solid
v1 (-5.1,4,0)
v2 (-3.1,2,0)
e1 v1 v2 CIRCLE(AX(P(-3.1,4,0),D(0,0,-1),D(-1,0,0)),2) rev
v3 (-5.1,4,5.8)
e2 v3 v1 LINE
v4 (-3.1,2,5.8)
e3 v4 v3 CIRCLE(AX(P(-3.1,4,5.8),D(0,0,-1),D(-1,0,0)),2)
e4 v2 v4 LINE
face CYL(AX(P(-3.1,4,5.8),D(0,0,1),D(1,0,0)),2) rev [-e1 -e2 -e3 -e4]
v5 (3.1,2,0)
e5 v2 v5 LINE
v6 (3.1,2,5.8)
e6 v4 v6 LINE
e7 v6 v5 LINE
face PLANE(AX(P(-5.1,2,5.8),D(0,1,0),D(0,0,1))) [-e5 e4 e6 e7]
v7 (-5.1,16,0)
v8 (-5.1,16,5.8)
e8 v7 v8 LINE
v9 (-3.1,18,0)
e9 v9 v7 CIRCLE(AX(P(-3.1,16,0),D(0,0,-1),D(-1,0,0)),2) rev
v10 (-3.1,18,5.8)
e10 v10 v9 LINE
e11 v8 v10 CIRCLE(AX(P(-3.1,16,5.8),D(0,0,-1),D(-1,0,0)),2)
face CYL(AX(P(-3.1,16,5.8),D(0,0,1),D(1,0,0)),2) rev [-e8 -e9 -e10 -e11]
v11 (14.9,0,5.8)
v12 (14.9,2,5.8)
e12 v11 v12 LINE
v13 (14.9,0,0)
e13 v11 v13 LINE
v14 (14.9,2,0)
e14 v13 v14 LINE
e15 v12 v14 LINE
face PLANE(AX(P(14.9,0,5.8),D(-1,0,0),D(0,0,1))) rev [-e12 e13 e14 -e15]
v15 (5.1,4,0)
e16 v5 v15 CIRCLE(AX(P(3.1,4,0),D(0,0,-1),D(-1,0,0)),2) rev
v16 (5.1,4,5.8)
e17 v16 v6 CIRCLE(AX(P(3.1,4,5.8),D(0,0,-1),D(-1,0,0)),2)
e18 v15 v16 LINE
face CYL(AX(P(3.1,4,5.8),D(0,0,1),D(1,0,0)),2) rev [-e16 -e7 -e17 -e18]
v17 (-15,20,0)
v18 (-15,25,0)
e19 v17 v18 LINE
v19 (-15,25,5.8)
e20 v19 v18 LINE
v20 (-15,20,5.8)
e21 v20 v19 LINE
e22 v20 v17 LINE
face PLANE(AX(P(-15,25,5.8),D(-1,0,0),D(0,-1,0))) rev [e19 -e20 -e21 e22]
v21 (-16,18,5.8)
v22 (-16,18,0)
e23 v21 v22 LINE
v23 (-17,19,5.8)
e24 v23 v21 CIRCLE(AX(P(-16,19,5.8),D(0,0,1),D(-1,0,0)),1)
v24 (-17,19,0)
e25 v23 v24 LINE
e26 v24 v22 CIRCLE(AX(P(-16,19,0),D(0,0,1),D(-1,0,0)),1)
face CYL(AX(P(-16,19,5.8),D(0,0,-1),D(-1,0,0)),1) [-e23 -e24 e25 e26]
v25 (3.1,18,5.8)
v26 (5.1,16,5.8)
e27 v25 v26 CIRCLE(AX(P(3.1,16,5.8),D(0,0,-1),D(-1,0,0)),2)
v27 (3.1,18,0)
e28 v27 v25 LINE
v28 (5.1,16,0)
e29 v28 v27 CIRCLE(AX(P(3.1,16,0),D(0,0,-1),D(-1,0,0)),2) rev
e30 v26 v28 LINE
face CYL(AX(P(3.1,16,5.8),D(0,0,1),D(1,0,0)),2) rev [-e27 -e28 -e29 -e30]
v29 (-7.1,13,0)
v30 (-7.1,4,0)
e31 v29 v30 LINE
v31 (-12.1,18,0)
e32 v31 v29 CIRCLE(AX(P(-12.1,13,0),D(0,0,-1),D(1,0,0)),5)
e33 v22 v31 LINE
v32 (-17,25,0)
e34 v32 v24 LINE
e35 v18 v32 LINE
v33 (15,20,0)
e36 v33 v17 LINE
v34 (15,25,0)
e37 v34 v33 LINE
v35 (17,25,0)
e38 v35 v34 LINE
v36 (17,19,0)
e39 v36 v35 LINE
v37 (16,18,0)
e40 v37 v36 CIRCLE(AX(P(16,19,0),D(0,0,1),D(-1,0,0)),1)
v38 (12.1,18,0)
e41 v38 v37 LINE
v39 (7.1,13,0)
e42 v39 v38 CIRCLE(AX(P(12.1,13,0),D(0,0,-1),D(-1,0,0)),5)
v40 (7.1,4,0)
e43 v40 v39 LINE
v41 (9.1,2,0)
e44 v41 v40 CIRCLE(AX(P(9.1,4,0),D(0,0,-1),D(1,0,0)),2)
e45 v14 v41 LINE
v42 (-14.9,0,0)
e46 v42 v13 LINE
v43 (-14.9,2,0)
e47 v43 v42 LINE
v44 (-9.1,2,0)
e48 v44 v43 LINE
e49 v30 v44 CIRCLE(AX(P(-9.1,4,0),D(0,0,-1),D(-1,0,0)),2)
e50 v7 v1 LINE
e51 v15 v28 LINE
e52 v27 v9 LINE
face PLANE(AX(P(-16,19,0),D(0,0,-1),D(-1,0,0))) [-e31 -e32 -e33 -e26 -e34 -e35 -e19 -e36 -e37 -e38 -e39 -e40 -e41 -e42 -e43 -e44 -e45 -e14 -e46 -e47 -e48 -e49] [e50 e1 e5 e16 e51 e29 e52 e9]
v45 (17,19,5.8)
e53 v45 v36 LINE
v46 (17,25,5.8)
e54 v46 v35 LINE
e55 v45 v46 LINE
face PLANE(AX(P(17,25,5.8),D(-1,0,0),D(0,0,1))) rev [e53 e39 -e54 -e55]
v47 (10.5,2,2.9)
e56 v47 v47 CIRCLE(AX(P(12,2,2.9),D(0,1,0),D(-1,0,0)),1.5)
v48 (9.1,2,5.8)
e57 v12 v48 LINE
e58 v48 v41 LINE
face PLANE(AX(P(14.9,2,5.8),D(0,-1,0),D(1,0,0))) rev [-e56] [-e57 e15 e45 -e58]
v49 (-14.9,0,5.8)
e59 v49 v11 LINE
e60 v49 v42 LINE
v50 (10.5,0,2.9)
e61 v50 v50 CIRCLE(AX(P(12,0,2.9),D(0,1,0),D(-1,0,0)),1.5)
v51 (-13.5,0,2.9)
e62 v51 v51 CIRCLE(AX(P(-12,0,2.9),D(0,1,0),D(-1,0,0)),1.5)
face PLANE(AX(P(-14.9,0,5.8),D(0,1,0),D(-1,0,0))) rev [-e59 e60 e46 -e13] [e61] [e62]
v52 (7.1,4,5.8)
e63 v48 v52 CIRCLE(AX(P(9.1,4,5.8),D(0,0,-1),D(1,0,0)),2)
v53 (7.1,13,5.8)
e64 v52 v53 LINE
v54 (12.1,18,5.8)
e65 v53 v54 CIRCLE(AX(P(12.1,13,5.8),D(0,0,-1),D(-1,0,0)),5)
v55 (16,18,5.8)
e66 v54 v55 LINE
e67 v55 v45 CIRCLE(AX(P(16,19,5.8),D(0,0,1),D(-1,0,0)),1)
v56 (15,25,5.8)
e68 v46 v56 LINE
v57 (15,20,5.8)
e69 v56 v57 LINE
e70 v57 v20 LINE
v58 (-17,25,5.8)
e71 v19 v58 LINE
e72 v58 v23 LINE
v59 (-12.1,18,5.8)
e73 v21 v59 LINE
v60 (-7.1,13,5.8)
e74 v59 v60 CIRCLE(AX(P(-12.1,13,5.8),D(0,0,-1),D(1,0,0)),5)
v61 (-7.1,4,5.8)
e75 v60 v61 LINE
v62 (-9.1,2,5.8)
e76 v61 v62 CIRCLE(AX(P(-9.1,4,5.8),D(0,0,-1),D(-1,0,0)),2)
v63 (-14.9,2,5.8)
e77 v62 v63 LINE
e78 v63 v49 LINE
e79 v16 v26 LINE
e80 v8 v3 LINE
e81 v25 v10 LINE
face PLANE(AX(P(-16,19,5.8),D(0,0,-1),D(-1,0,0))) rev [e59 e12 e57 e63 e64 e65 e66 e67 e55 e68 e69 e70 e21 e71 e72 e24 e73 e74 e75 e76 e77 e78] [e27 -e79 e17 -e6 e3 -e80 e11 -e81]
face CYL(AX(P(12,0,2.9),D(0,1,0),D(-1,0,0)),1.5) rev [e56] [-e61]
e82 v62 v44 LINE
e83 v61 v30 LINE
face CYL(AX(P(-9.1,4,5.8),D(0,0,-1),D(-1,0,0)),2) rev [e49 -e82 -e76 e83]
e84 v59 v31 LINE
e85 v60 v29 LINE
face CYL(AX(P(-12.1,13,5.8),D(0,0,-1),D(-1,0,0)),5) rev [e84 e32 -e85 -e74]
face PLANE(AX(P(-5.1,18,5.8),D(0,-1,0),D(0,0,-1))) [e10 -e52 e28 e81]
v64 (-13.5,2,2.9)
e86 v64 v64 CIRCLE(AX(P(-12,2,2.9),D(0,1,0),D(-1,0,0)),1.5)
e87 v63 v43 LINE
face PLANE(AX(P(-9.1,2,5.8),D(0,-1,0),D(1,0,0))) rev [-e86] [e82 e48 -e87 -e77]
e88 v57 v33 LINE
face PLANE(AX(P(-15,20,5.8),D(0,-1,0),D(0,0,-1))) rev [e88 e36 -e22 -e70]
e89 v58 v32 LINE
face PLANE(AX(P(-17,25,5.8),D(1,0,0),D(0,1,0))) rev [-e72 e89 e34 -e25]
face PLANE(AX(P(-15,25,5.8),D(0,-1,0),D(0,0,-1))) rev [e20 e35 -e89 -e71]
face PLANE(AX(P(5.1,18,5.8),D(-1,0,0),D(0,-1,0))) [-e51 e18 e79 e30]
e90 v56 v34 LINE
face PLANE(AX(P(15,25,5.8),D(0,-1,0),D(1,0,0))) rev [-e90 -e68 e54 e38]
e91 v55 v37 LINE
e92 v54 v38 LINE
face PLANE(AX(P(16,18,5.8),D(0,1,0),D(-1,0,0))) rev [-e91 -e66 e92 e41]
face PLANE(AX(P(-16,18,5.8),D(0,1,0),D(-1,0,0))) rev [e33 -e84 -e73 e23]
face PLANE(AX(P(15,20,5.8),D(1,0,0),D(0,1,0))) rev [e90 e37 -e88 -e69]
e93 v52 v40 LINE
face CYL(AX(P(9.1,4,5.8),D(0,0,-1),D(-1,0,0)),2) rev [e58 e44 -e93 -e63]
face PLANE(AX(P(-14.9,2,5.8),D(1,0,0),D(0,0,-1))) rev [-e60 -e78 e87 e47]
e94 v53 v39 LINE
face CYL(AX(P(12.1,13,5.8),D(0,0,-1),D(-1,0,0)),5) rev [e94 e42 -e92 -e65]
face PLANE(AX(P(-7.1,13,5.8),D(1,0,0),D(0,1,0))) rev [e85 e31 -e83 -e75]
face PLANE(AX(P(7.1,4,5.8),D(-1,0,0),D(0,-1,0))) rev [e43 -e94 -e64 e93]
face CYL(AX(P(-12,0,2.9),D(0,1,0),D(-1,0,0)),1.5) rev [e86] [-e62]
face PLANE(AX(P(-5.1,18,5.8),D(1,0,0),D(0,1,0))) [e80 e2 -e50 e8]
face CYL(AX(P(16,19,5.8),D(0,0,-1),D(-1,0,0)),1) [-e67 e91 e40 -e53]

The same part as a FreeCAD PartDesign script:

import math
import FreeCAD as App
import Part
import Sketcher


def edges_at(feature, points):
    """Names of the edges that pass closest to the given points."""
    edges = feature.Shape.Edges
    near = lambda p: min(range(len(edges)), key=lambda i: edges[i].distToShape(Part.Vertex(*p))[0])
    return sorted({f"Edge{near(p) + 1}" for p in points})


def add_polygon(sketch, points):
    """Adds a closed chain of lines whose ends are joined by coincident constraints."""
    first, n = sketch.GeometryCount, len(points)
    for a, b in zip(points, points[1:] + points[:1]):
        sketch.addGeometry(Part.LineSegment(App.Vector(*a, 0), App.Vector(*b, 0)), False)
    for i in range(n):
        sketch.addConstraint(Sketcher.Constraint("Coincident", first + i, 2, first + (i + 1) % n, 1))

doc = App.newDocument("Part")
body = doc.addObject("PartDesign::Body", "Body")

# Sketch on XY plane
sketch1 = body.newObject("Sketcher::SketchObject", "Sketch")
sketch1.AttachmentSupport = (doc.getObject("XY_Plane"), [""])
sketch1.MapMode = "FlatFace"
sketch1.addGeometry(Part.LineSegment(App.Vector(-15, 20, 0), App.Vector(-15, 25, 0)), False)  # 0
sketch1.addGeometry(Part.LineSegment(App.Vector(-15, 25, 0), App.Vector(-17, 25, 0)), False)  # 1
sketch1.addGeometry(Part.LineSegment(App.Vector(-17, 25, 0), App.Vector(-17, 19, 0)), False)  # 2
sketch1.addGeometry(Part.ArcOfCircle(Part.Circle(App.Vector(-16, 19, 0), App.Vector(0, 0, 1), 1), math.radians(-180), math.radians(-90)), False)  # 3
sketch1.addGeometry(Part.LineSegment(App.Vector(-16, 18, 0), App.Vector(-12.1, 18, 0)), False)  # 4
sketch1.addGeometry(Part.ArcOfCircle(Part.Circle(App.Vector(-12.1, 13, 0), App.Vector(0, 0, 1), 5), math.radians(0), math.radians(90)), False)  # 5
sketch1.addGeometry(Part.LineSegment(App.Vector(-7.1, 13, 0), App.Vector(-7.1, 4, 0)), False)  # 6
sketch1.addGeometry(Part.ArcOfCircle(Part.Circle(App.Vector(-9.1, 4, 0), App.Vector(0, 0, 1), 2), math.radians(-90), math.radians(0)), False)  # 7
sketch1.addGeometry(Part.LineSegment(App.Vector(-9.1, 2, 0), App.Vector(-14.9, 2, 0)), False)  # 8
sketch1.addGeometry(Part.LineSegment(App.Vector(-14.9, 2, 0), App.Vector(-14.9, 0, 0)), False)  # 9
sketch1.addGeometry(Part.LineSegment(App.Vector(-14.9, 0, 0), App.Vector(14.9, 0, 0)), False)  # 10
sketch1.addGeometry(Part.LineSegment(App.Vector(14.9, 0, 0), App.Vector(14.9, 2, 0)), False)  # 11
sketch1.addGeometry(Part.LineSegment(App.Vector(14.9, 2, 0), App.Vector(9.1, 2, 0)), False)  # 12
sketch1.addGeometry(Part.ArcOfCircle(Part.Circle(App.Vector(9.1, 4, 0), App.Vector(0, 0, 1), 2), math.radians(-180), math.radians(-90)), False)  # 13
sketch1.addGeometry(Part.LineSegment(App.Vector(7.1, 4, 0), App.Vector(7.1, 13, 0)), False)  # 14
sketch1.addGeometry(Part.ArcOfCircle(Part.Circle(App.Vector(12.1, 13, 0), App.Vector(0, 0, 1), 5), math.radians(90), math.radians(180)), False)  # 15
sketch1.addGeometry(Part.LineSegment(App.Vector(12.1, 18, 0), App.Vector(16, 18, 0)), False)  # 16
sketch1.addGeometry(Part.ArcOfCircle(Part.Circle(App.Vector(16, 19, 0), App.Vector(0, 0, 1), 1), math.radians(-90), math.radians(0)), False)  # 17
sketch1.addGeometry(Part.LineSegment(App.Vector(17, 19, 0), App.Vector(17, 25, 0)), False)  # 18
sketch1.addGeometry(Part.LineSegment(App.Vector(17, 25, 0), App.Vector(15, 25, 0)), False)  # 19
sketch1.addGeometry(Part.LineSegment(App.Vector(15, 25, 0), App.Vector(15, 20, 0)), False)  # 20
sketch1.addGeometry(Part.LineSegment(App.Vector(15, 20, 0), App.Vector(-15, 20, 0)), False)  # 21
add_polygon(sketch1, [(-5.1, 2), (-5.1, 18), (5.1, 18), (5.1, 2)])  # lines 22-25
sketch1.addConstraint([
    Sketcher.Constraint("Coincident", 0, 2, 1, 1),
    Sketcher.Constraint("Coincident", 1, 2, 2, 1),
    Sketcher.Constraint("Tangent", 2, 2, 3, 1),
    Sketcher.Constraint("Tangent", 3, 2, 4, 1),
    Sketcher.Constraint("Tangent", 4, 2, 5, 2),
    Sketcher.Constraint("Tangent", 5, 1, 6, 1),
    Sketcher.Constraint("Tangent", 6, 2, 7, 2),
    Sketcher.Constraint("Tangent", 7, 1, 8, 1),
    Sketcher.Constraint("Coincident", 8, 2, 9, 1),
    Sketcher.Constraint("Coincident", 9, 2, 10, 1),
    Sketcher.Constraint("Coincident", 10, 2, 11, 1),
    Sketcher.Constraint("Coincident", 11, 2, 12, 1),
    Sketcher.Constraint("Tangent", 12, 2, 13, 2),
    Sketcher.Constraint("Tangent", 13, 1, 14, 1),
    Sketcher.Constraint("Tangent", 14, 2, 15, 2),
    Sketcher.Constraint("Tangent", 15, 1, 16, 1),
    Sketcher.Constraint("Tangent", 16, 2, 17, 1),
    Sketcher.Constraint("Tangent", 17, 2, 18, 1),
    Sketcher.Constraint("Coincident", 18, 2, 19, 1),
    Sketcher.Constraint("Coincident", 19, 2, 20, 1),
    Sketcher.Constraint("Coincident", 20, 2, 21, 1),
    Sketcher.Constraint("Coincident", 21, 2, 0, 1),
    Sketcher.Constraint("Vertical", 0),
    Sketcher.Constraint("Horizontal", 1),
    Sketcher.Constraint("Vertical", 2),
    Sketcher.Constraint("Horizontal", 4),
    Sketcher.Constraint("Vertical", 6),
    Sketcher.Constraint("Horizontal", 8),
    Sketcher.Constraint("Vertical", 9),
    Sketcher.Constraint("Horizontal", 10),
    Sketcher.Constraint("Vertical", 11),
    Sketcher.Constraint("Horizontal", 12),
    Sketcher.Constraint("Vertical", 14),
    Sketcher.Constraint("Horizontal", 16),
    Sketcher.Constraint("Vertical", 18),
    Sketcher.Constraint("Horizontal", 19),
    Sketcher.Constraint("Vertical", 20),
    Sketcher.Constraint("Horizontal", 21),
    Sketcher.Constraint("Vertical", 22),
    Sketcher.Constraint("Horizontal", 23),
    Sketcher.Constraint("Vertical", 24),
    Sketcher.Constraint("Horizontal", 25),
    Sketcher.Constraint("Equal", 7, 13),
    Sketcher.Constraint("Equal", 5, 15),
    Sketcher.Constraint("Equal", 3, 17),
    Sketcher.Constraint("Symmetric", 9, 2, 10, 2, -1, 1),
    Sketcher.Constraint("Symmetric", 7, 3, 13, 3, -2),
    Sketcher.Constraint("Symmetric", 3, 3, 17, 3, -2),
    Sketcher.Constraint("Symmetric", 0, 2, 19, 2, -2),
    Sketcher.Constraint("Horizontal", 16, 2, 22, 2),
    Sketcher.Constraint("Horizontal", 12, 2, 24, 2),
    Sketcher.Constraint("Equal", 19, 9),
    Sketcher.Constraint("Radius", 3, 1.0),
    Sketcher.Constraint("Radius", 5, 5.0),
    Sketcher.Constraint("Radius", 7, 2.0),
    Sketcher.Constraint("DistanceX", 1, 2, 1, 1, 2.0),
    Sketcher.Constraint("DistanceX", 21, 2, 21, 1, 30.0),
    Sketcher.Constraint("DistanceY", 0, 1, 0, 2, 5.0),
    Sketcher.Constraint("DistanceY", 2, 2, 2, 1, 6.0),
    Sketcher.Constraint("DistanceY", 6, 2, 6, 1, 9.0),
    Sketcher.Constraint("DistanceX", 4, 1, 4, 2, 3.9),
    Sketcher.Constraint("DistanceX", 8, 2, 8, 1, 5.8),
    Sketcher.Constraint("DistanceX", 23, 1, 23, 2, 10.2),
    Sketcher.Constraint("DistanceX", 5, 1, 22, 2, 2.0),
])
pad1 = body.newObject("PartDesign::Pad", "Pad")
pad1.Profile = sketch1
pad1.Length = 5.8

# Sketch on XZ plane
sketch2 = body.newObject("Sketcher::SketchObject", "Sketch001")
sketch2.AttachmentSupport = (doc.getObject("XZ_Plane"), [""])
sketch2.MapMode = "FlatFace"
sketch2.AttachmentOffset = App.Placement(App.Vector(0, 0, -2), App.Rotation())
sketch2.addGeometry([
    Part.Circle(App.Vector(-12, 2.9, 0), App.Vector(0, 0, 1), 1.5),
    Part.Circle(App.Vector(12, 2.9, 0), App.Vector(0, 0, 1), 1.5),
], False)
sketch2.addConstraint([
    Sketcher.Constraint("Equal", 0, 1),
    Sketcher.Constraint("Symmetric", 0, 3, 1, 3, -2),
    Sketcher.Constraint("Diameter", 0, 3.0),
    Sketcher.Constraint("DistanceX", 0, 3, -1, 1, 12.0),
    Sketcher.Constraint("DistanceY", -1, 1, 0, 3, 2.9),
])
pocket1 = body.newObject("PartDesign::Pocket", "Pocket")
pocket1.Profile = sketch2
pocket1.Type = "ThroughAll"
pocket1.Reversed = True
doc.recompute()

fillet = body.newObject("PartDesign::Fillet", "Fillet")
fillet.Base = (pocket1, edges_at(pocket1, [
    (-5.1, 18, 2.9),
    (-5.1, 2, 2.9),
    (5.1, 2, 2.9),
    (5.1, 18, 2.9),
]))
fillet.Radius = 2

doc.recompute()
